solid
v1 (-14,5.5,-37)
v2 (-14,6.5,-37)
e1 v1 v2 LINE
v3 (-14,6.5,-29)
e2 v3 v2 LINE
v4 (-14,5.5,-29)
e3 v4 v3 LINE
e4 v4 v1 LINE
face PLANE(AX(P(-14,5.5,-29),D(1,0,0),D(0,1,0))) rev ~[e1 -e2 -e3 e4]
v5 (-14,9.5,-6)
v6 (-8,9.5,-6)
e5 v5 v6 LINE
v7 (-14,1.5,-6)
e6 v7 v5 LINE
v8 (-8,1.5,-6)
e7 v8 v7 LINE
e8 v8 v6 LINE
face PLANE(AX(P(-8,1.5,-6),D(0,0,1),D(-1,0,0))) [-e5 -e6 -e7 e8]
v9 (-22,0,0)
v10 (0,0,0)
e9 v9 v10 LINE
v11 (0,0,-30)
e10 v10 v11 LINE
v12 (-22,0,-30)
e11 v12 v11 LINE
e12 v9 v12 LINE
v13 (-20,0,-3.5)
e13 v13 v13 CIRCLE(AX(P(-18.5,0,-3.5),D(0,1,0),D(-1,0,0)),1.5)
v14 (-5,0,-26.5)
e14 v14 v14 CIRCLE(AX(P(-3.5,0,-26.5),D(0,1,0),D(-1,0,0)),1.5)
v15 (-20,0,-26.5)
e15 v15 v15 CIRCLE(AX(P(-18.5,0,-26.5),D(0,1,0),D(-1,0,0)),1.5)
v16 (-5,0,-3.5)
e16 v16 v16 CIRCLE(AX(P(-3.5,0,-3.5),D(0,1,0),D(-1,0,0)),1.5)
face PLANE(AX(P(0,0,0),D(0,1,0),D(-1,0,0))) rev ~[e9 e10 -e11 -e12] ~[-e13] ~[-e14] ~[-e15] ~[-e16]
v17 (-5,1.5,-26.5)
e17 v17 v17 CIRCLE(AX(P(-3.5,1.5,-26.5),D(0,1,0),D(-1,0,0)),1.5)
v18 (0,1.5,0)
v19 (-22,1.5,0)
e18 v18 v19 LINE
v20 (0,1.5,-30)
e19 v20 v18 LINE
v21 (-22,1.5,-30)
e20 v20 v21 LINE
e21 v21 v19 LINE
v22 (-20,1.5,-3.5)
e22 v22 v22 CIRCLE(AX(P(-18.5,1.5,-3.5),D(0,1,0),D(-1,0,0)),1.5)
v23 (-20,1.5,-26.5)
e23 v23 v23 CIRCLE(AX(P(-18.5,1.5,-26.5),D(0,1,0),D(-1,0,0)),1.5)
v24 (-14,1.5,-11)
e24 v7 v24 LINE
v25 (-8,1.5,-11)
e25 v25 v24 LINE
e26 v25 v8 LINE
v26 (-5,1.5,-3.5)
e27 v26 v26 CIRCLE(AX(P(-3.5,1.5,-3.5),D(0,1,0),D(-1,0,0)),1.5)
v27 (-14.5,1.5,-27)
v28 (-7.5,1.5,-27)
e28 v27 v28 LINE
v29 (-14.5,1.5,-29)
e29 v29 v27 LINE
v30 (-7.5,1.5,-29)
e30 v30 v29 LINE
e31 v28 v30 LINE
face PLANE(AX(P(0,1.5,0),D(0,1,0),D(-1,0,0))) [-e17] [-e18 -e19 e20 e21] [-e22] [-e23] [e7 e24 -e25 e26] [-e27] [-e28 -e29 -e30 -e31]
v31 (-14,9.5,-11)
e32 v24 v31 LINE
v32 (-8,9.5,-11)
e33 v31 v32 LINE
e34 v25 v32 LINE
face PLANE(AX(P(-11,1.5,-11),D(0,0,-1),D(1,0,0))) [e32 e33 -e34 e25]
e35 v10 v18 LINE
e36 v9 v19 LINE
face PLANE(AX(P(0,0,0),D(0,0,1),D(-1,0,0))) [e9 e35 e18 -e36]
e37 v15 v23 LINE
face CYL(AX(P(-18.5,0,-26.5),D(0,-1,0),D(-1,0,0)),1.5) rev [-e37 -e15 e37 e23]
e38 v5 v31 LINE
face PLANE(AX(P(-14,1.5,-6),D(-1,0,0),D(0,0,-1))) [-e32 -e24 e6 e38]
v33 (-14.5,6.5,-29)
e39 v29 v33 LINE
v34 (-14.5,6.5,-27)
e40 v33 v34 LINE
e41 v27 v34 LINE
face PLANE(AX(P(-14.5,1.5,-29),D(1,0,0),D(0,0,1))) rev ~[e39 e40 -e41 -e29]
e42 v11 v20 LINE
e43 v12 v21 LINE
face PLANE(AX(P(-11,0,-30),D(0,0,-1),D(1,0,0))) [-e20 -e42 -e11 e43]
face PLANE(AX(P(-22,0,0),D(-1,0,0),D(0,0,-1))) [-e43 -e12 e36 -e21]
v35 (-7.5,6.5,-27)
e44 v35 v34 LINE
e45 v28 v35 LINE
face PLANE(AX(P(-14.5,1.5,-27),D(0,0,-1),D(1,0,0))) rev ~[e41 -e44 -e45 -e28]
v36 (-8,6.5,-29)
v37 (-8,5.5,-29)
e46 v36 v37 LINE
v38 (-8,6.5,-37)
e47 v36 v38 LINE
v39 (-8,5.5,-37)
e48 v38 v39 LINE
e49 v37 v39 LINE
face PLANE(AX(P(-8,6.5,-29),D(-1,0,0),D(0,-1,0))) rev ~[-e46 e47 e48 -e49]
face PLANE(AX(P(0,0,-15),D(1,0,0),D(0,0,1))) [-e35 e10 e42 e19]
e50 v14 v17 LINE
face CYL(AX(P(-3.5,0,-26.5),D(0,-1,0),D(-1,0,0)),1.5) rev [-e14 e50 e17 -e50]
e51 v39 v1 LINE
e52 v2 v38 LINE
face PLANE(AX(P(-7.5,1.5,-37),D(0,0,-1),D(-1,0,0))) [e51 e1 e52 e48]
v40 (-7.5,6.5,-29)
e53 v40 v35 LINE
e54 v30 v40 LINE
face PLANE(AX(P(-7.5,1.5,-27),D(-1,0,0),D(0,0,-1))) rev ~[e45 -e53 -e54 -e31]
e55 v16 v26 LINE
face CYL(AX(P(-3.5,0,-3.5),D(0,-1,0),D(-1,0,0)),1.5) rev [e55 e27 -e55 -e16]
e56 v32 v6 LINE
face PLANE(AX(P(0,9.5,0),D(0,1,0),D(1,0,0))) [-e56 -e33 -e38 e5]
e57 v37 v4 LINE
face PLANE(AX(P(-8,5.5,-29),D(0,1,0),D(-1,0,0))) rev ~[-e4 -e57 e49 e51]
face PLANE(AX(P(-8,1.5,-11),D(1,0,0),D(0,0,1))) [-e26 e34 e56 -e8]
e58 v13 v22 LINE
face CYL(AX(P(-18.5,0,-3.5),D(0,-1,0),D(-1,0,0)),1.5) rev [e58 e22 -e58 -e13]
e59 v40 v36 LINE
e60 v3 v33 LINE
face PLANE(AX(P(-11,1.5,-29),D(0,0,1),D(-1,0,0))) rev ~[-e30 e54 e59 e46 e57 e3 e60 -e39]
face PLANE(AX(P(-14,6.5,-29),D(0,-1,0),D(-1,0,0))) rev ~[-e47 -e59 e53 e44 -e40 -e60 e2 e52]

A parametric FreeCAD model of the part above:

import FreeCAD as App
import Part
import Sketcher
from FreeCAD import Vector
Q = App.Units.Quantity

doc = App.newDocument("Part")
params = doc.addObject("Spreadsheet::Sheet", "Params")
for row, (alias, value) in enumerate([
    ("sketch1_diameter", "3 mm"),
    ("sketch1_width", "22 mm"),
    ("sketch1_height", "30 mm"),
    ("pad1_length", "1.5 mm"),
    ("sketch2_width", "7 mm"),
    ("sketch2_width2", "6 mm"),
    ("sketch2_height", "2 mm"),
    ("sketch2_height2", "5 mm"),
    ("pad2_length", "8 mm"),
    ("sketch3_width", "6 mm"),
    ("sketch3_height", "1 mm"),
    ("pad3_length", "8 mm"),
    ("sketch4_width", "7 mm"),
    ("sketch4_height", "3 mm"),
    ("pocket1_length", "8 mm"),
], start=1):
    params.set(f"A{row}", alias)
    params.set(f"B{row}", "=" + value)
    params.setAlias(f"B{row}", alias)

body = doc.addObject("PartDesign::Body", "Body")

# Sketch on XZ plane
sketch1 = body.newObject("Sketcher::SketchObject", "Sketch")
sketch1.AttachmentSupport = (doc.getObject("XZ_Plane"), [""])
sketch1.MapMode = "FlatFace"
sketch1.addGeometry([
    Part.LineSegment(Vector(0, 0, 0), Vector(0, -30, 0)),  # 0
    Part.LineSegment(Vector(0, -30, 0), Vector(-22, -30, 0)),  # 1
    Part.LineSegment(Vector(-22, -30, 0), Vector(-22, 0, 0)),  # 2
    Part.LineSegment(Vector(-22, 0, 0), Vector(0, 0, 0)),  # 3
    Part.Circle(Vector(-3.5, -3.5, 0), Vector(0, 0, 1), 1.5),  # 4
    Part.Circle(Vector(-18.5, -3.5, 0), Vector(0, 0, 1), 1.5),  # 5
    Part.Circle(Vector(-3.5, -26.5, 0), Vector(0, 0, 1), 1.5),  # 6
    Part.Circle(Vector(-18.5, -26.5, 0), Vector(0, 0, 1), 1.5),  # 7
], False)
sketch1.addConstraint([
    Sketcher.Constraint("Coincident", 0, 2, 1, 1),
    Sketcher.Constraint("Coincident", 1, 2, 2, 1),
    Sketcher.Constraint("Coincident", 2, 2, 3, 1),
    Sketcher.Constraint("Coincident", 3, 2, 0, 1),
    Sketcher.Constraint("Vertical", 0),
    Sketcher.Constraint("Horizontal", 1),
    Sketcher.Constraint("Vertical", 2),
    Sketcher.Constraint("Horizontal", 3),
    Sketcher.Constraint("Coincident", 3, 2, -1, 1),
    Sketcher.Constraint("Equal", 4, 5),
    Sketcher.Constraint("Equal", 5, 6),
    Sketcher.Constraint("Equal", 6, 7),
    Sketcher.Constraint("Horizontal", 4, 3, 5, 3),
    Sketcher.Constraint("Horizontal", 6, 3, 7, 3),
    Sketcher.Constraint("Vertical", 4, 3, 6, 3),
    Sketcher.Constraint("Vertical", 5, 3, 7, 3),
    Sketcher.Constraint("Diameter", 4, Q("3 mm")),
    Sketcher.Constraint("DistanceX", 1, 2, 1, 1, Q("22 mm")),
    Sketcher.Constraint("DistanceY", 0, 2, 0, 1, Q("30 mm")),
    Sketcher.Constraint("DistanceX", 5, 3, 4, 3, Q("15 mm")),
    Sketcher.Constraint("DistanceY", 6, 3, 4, 3, Q("23 mm")),
    Sketcher.Constraint("DistanceX", 4, 3, -1, 1, Q("3.5 mm")),
    Sketcher.Constraint("DistanceY", 4, 3, -1, 1, Q("3.5 mm")),
])
sketch1.setExpression("Constraints[16]", "Params.sketch1_diameter")
sketch1.setExpression("Constraints[17]", "Params.sketch1_width")
sketch1.setExpression("Constraints[18]", "Params.sketch1_height")
pad1 = body.newObject("PartDesign::Pad", "Pad")
pad1.Profile = sketch1
pad1.setExpression("Length", "Params.pad1_length")
pad1.Reversed = True

# Sketch on XZ plane
sketch2 = body.newObject("Sketcher::SketchObject", "Sketch001")
sketch2.AttachmentSupport = (doc.getObject("XZ_Plane"), [""])
sketch2.MapMode = "FlatFace"
sketch2.AttachmentOffset = App.Placement(Vector(0, 0, -1.5), App.Rotation())
sketch2.addGeometry([
    Part.LineSegment(Vector(-14.5, -29, 0), Vector(-14.5, -27, 0)),  # 0
    Part.LineSegment(Vector(-14.5, -27, 0), Vector(-7.5, -27, 0)),  # 1
    Part.LineSegment(Vector(-7.5, -27, 0), Vector(-7.5, -29, 0)),  # 2
    Part.LineSegment(Vector(-7.5, -29, 0), Vector(-14.5, -29, 0)),  # 3
    Part.LineSegment(Vector(-8, -11, 0), Vector(-14, -11, 0)),  # 4
    Part.LineSegment(Vector(-14, -11, 0), Vector(-14, -6, 0)),  # 5
    Part.LineSegment(Vector(-14, -6, 0), Vector(-8, -6, 0)),  # 6
    Part.LineSegment(Vector(-8, -6, 0), Vector(-8, -11, 0)),  # 7
], False)
sketch2.addConstraint([
    Sketcher.Constraint("Coincident", 0, 2, 1, 1),
    Sketcher.Constraint("Coincident", 1, 2, 2, 1),
    Sketcher.Constraint("Coincident", 2, 2, 3, 1),
    Sketcher.Constraint("Coincident", 3, 2, 0, 1),
    Sketcher.Constraint("Coincident", 4, 2, 5, 1),
    Sketcher.Constraint("Coincident", 5, 2, 6, 1),
    Sketcher.Constraint("Coincident", 6, 2, 7, 1),
    Sketcher.Constraint("Coincident", 7, 2, 4, 1),
    Sketcher.Constraint("Vertical", 0),
    Sketcher.Constraint("Horizontal", 1),
    Sketcher.Constraint("Vertical", 2),
    Sketcher.Constraint("Horizontal", 3),
    Sketcher.Constraint("Horizontal", 4),
    Sketcher.Constraint("Vertical", 5),
    Sketcher.Constraint("Horizontal", 6),
    Sketcher.Constraint("Vertical", 7),
    Sketcher.Constraint("DistanceX", 1, 1, 1, 2, Q("7 mm")),
    Sketcher.Constraint("DistanceX", 4, 2, 4, 1, Q("6 mm")),
    Sketcher.Constraint("DistanceY", 0, 1, 0, 2, Q("2 mm")),
    Sketcher.Constraint("DistanceY", 5, 1, 5, 2, Q("5 mm")),
    Sketcher.Constraint("DistanceY", 5, 2, -1, 1, Q("6 mm")),
    Sketcher.Constraint("DistanceY", 0, 2, -1, 1, Q("27 mm")),
    Sketcher.Constraint("DistanceX", 4, 2, -1, 1, Q("14 mm")),
    Sketcher.Constraint("DistanceX", 0, 2, -1, 1, Q("14.5 mm")),
])
sketch2.setExpression("Constraints[16]", "Params.sketch2_width")
sketch2.setExpression("Constraints[17]", "Params.sketch2_width2")
sketch2.setExpression("Constraints[18]", "Params.sketch2_height")
sketch2.setExpression("Constraints[19]", "Params.sketch2_height2")
pad2 = body.newObject("PartDesign::Pad", "Pad001")
pad2.Profile = sketch2
pad2.setExpression("Length", "Params.pad2_length")
pad2.Reversed = True

# Sketch on XY plane
sketch3 = body.newObject("Sketcher::SketchObject", "Sketch002")
sketch3.AttachmentSupport = (doc.getObject("XY_Plane"), [""])
sketch3.MapMode = "FlatFace"
sketch3.AttachmentOffset = App.Placement(Vector(0, 0, -29), App.Rotation())
sketch3.addGeometry([
    Part.LineSegment(Vector(-8, 6.5, 0), Vector(-8, 5.5, 0)),
    Part.LineSegment(Vector(-8, 5.5, 0), Vector(-14, 5.5, 0)),
    Part.LineSegment(Vector(-14, 5.5, 0), Vector(-14, 6.5, 0)),
    Part.LineSegment(Vector(-14, 6.5, 0), Vector(-8, 6.5, 0)),
], False)
sketch3.addConstraint([
    Sketcher.Constraint("Coincident", 0, 2, 1, 1),
    Sketcher.Constraint("Coincident", 1, 2, 2, 1),
    Sketcher.Constraint("Coincident", 2, 2, 3, 1),
    Sketcher.Constraint("Coincident", 3, 2, 0, 1),
    Sketcher.Constraint("Vertical", 0),
    Sketcher.Constraint("Horizontal", 1),
    Sketcher.Constraint("Vertical", 2),
    Sketcher.Constraint("Horizontal", 3),
    Sketcher.Constraint("DistanceX", 1, 2, 1, 1, Q("6 mm")),
    Sketcher.Constraint("DistanceY", 0, 2, 0, 1, Q("1 mm")),
    Sketcher.Constraint("DistanceX", 0, 2, -1, 1, Q("8 mm")),
    Sketcher.Constraint("DistanceY", -1, 1, 0, 2, Q("5.5 mm")),
])
sketch3.setExpression("Constraints[8]", "Params.sketch3_width")
sketch3.setExpression("Constraints[9]", "Params.sketch3_height")
pad3 = body.newObject("PartDesign::Pad", "Pad002")
pad3.Profile = sketch3
pad3.setExpression("Length", "Params.pad3_length")
pad3.Reversed = True

# Sketch on XY plane
sketch4 = body.newObject("Sketcher::SketchObject", "Sketch003")
sketch4.AttachmentSupport = (doc.getObject("XY_Plane"), [""])
sketch4.MapMode = "FlatFace"
sketch4.AttachmentOffset = App.Placement(Vector(0, 0, -29), App.Rotation())
sketch4.addGeometry([
    Part.LineSegment(Vector(-7.5, 6.5, 0), Vector(-14.5, 6.5, 0)),
    Part.LineSegment(Vector(-14.5, 6.5, 0), Vector(-14.5, 9.5, 0)),
    Part.LineSegment(Vector(-14.5, 9.5, 0), Vector(-7.5, 9.5, 0)),
    Part.LineSegment(Vector(-7.5, 9.5, 0), Vector(-7.5, 6.5, 0)),
], False)
sketch4.addConstraint([
    Sketcher.Constraint("Coincident", 0, 2, 1, 1),
    Sketcher.Constraint("Coincident", 1, 2, 2, 1),
    Sketcher.Constraint("Coincident", 2, 2, 3, 1),
    Sketcher.Constraint("Coincident", 3, 2, 0, 1),
    Sketcher.Constraint("Horizontal", 0),
    Sketcher.Constraint("Vertical", 1),
    Sketcher.Constraint("Horizontal", 2),
    Sketcher.Constraint("Vertical", 3),
    Sketcher.Constraint("DistanceX", 0, 2, 0, 1, Q("7 mm")),
    Sketcher.Constraint("DistanceY", 1, 1, 1, 2, Q("3 mm")),
    Sketcher.Constraint("DistanceX", 0, 2, -1, 1, Q("14.5 mm")),
    Sketcher.Constraint("DistanceY", -1, 1, 0, 2, Q("6.5 mm")),
])
sketch4.setExpression("Constraints[8]", "Params.sketch4_width")
sketch4.setExpression("Constraints[9]", "Params.sketch4_height")
pocket1 = body.newObject("PartDesign::Pocket", "Pocket")
pocket1.Profile = sketch4
pocket1.setExpression("Length", "Params.pocket1_length")
pocket1.Reversed = True

doc.recompute()
